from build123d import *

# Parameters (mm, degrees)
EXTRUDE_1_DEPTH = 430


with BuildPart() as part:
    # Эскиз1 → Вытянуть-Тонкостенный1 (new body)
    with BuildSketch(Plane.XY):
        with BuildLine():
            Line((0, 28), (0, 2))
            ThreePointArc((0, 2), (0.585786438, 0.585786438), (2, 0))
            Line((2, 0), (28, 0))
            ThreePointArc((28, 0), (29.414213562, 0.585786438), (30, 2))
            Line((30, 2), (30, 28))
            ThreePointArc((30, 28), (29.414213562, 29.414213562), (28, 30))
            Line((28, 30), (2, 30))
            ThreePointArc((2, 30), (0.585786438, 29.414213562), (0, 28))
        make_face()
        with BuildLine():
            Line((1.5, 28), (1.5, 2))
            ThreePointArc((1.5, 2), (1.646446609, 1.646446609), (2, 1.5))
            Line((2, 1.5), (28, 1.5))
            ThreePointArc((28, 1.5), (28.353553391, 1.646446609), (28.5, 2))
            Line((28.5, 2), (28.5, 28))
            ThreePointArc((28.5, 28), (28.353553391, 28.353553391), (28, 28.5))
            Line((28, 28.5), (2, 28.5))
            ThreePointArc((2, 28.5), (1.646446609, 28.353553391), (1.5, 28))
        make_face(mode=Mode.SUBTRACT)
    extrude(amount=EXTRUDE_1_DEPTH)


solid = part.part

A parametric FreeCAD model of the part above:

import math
import FreeCAD as App
import Part
import Sketcher
from FreeCAD import Vector

doc = App.newDocument("Part")
params = doc.addObject("Spreadsheet::Sheet", "Params")
for row, (alias, value) in enumerate([
    ("sketch1_radius", "2 mm"),
    ("sketch1_radius2", "0.5 mm"),
    ("sketch1_width", "26 mm"),
    ("pad1_length", "430 mm"),
], start=1):
    params.set(f"A{row}", alias)
    params.set(f"B{row}", "=" + value)
    params.setAlias(f"B{row}", alias)

body = doc.addObject("PartDesign::Body", "Body")

# Sketch on XY plane
sketch1 = doc.addObject("Sketcher::SketchObject", "Sketch")
body.addObject(sketch1)
sketch1.AttachmentSupport = (doc.XY_Plane, [""])
sketch1.MapMode = "FlatFace"
sketch1.addGeometry([
    Part.LineSegment(Vector(0, 28, 0), Vector(0, 2, 0)),  # 0
    Part.ArcOfCircle(Part.Circle(Vector(2, 2, 0), Vector(0, 0, 1), 2), math.radians(-180), math.radians(-90)),  # 1
    Part.LineSegment(Vector(2, 0, 0), Vector(28, 0, 0)),  # 2
    Part.ArcOfCircle(Part.Circle(Vector(28, 2, 0), Vector(0, 0, 1), 2), math.radians(-90), math.radians(0)),  # 3
    Part.LineSegment(Vector(30, 2, 0), Vector(30, 28, 0)),  # 4
    Part.ArcOfCircle(Part.Circle(Vector(28, 28, 0), Vector(0, 0, 1), 2), math.radians(0), math.radians(90)),  # 5
    Part.LineSegment(Vector(28, 30, 0), Vector(2, 30, 0)),  # 6
    Part.ArcOfCircle(Part.Circle(Vector(2, 28, 0), Vector(0, 0, 1), 2), math.radians(90), math.radians(180)),  # 7
    Part.LineSegment(Vector(1.5, 2, 0), Vector(1.5, 28, 0)),  # 8
    Part.ArcOfCircle(Part.Circle(Vector(2, 28, 0), Vector(0, 0, 1), 0.5), math.radians(90), math.radians(180)),  # 9
    Part.LineSegment(Vector(2, 28.5, 0), Vector(28, 28.5, 0)),  # 10
    Part.ArcOfCircle(Part.Circle(Vector(28, 28, 0), Vector(0, 0, 1), 0.5), math.radians(0), math.radians(90)),  # 11
    Part.LineSegment(Vector(28.5, 28, 0), Vector(28.5, 2, 0)),  # 12
    Part.ArcOfCircle(Part.Circle(Vector(28, 2, 0), Vector(0, 0, 1), 0.5), math.radians(-90), math.radians(0)),  # 13
    Part.LineSegment(Vector(28, 1.5, 0), Vector(2, 1.5, 0)),  # 14
    Part.ArcOfCircle(Part.Circle(Vector(2, 2, 0), Vector(0, 0, 1), 0.5), math.radians(180), math.radians(270)),  # 15
], False)
sketch1.addConstraint([
    Sketcher.Constraint("Tangent", 0, 2, 1, 1),
    Sketcher.Constraint("Tangent", 1, 2, 2, 1),
    Sketcher.Constraint("Tangent", 2, 2, 3, 1),
    Sketcher.Constraint("Tangent", 3, 2, 4, 1),
    Sketcher.Constraint("Tangent", 4, 2, 5, 1),
    Sketcher.Constraint("Tangent", 5, 2, 6, 1),
    Sketcher.Constraint("Tangent", 6, 2, 7, 1),
    Sketcher.Constraint("Tangent", 7, 2, 0, 1),
    Sketcher.Constraint("Tangent", 8, 2, 9, 2),
    Sketcher.Constraint("Tangent", 9, 1, 10, 1),
    Sketcher.Constraint("Tangent", 10, 2, 11, 2),
    Sketcher.Constraint("Tangent", 11, 1, 12, 1),
    Sketcher.Constraint("Tangent", 12, 2, 13, 2),
    Sketcher.Constraint("Tangent", 13, 1, 14, 1),
    Sketcher.Constraint("Tangent", 14, 2, 15, 2),
    Sketcher.Constraint("Tangent", 15, 1, 8, 1),
    Sketcher.Constraint("Vertical", 0),
    Sketcher.Constraint("Horizontal", 2),
    Sketcher.Constraint("Vertical", 4),
    Sketcher.Constraint("Horizontal", 6),
    Sketcher.Constraint("Vertical", 8),
    Sketcher.Constraint("Horizontal", 10),
    Sketcher.Constraint("Vertical", 12),
    Sketcher.Constraint("Horizontal", 14),
    Sketcher.Constraint("Coincident", 9, 3, 7, 3),
    Sketcher.Constraint("Coincident", 11, 3, 5, 3),
    Sketcher.Constraint("Coincident", 13, 3, 3, 3),
    Sketcher.Constraint("Equal", 1, 3),
    Sketcher.Constraint("Equal", 3, 5),
    Sketcher.Constraint("Equal", 5, 7),
    Sketcher.Constraint("Equal", 13, 15),
    Sketcher.Constraint("PointOnObject", 0, 2, -2),
    Sketcher.Constraint("PointOnObject", 1, 2, -1),
    Sketcher.Constraint("Equal", 14, 0),
    Sketcher.Constraint("Radius", 1, 2.0),
    Sketcher.Constraint("Radius", 9, 0.5),
    Sketcher.Constraint("DistanceX", 2, 1, 2, 2, 26.0),
])
sketch1.setExpression("Constraints[34]", "Params.sketch1_radius")
sketch1.setExpression("Constraints[35]", "Params.sketch1_radius2")
sketch1.setExpression("Constraints[36]", "Params.sketch1_width")
pad1 = doc.addObject("PartDesign::Pad", "Pad")
body.addObject(pad1)
pad1.Profile = sketch1
pad1.setExpression("Length", "Params.pad1_length")

doc.recompute()
